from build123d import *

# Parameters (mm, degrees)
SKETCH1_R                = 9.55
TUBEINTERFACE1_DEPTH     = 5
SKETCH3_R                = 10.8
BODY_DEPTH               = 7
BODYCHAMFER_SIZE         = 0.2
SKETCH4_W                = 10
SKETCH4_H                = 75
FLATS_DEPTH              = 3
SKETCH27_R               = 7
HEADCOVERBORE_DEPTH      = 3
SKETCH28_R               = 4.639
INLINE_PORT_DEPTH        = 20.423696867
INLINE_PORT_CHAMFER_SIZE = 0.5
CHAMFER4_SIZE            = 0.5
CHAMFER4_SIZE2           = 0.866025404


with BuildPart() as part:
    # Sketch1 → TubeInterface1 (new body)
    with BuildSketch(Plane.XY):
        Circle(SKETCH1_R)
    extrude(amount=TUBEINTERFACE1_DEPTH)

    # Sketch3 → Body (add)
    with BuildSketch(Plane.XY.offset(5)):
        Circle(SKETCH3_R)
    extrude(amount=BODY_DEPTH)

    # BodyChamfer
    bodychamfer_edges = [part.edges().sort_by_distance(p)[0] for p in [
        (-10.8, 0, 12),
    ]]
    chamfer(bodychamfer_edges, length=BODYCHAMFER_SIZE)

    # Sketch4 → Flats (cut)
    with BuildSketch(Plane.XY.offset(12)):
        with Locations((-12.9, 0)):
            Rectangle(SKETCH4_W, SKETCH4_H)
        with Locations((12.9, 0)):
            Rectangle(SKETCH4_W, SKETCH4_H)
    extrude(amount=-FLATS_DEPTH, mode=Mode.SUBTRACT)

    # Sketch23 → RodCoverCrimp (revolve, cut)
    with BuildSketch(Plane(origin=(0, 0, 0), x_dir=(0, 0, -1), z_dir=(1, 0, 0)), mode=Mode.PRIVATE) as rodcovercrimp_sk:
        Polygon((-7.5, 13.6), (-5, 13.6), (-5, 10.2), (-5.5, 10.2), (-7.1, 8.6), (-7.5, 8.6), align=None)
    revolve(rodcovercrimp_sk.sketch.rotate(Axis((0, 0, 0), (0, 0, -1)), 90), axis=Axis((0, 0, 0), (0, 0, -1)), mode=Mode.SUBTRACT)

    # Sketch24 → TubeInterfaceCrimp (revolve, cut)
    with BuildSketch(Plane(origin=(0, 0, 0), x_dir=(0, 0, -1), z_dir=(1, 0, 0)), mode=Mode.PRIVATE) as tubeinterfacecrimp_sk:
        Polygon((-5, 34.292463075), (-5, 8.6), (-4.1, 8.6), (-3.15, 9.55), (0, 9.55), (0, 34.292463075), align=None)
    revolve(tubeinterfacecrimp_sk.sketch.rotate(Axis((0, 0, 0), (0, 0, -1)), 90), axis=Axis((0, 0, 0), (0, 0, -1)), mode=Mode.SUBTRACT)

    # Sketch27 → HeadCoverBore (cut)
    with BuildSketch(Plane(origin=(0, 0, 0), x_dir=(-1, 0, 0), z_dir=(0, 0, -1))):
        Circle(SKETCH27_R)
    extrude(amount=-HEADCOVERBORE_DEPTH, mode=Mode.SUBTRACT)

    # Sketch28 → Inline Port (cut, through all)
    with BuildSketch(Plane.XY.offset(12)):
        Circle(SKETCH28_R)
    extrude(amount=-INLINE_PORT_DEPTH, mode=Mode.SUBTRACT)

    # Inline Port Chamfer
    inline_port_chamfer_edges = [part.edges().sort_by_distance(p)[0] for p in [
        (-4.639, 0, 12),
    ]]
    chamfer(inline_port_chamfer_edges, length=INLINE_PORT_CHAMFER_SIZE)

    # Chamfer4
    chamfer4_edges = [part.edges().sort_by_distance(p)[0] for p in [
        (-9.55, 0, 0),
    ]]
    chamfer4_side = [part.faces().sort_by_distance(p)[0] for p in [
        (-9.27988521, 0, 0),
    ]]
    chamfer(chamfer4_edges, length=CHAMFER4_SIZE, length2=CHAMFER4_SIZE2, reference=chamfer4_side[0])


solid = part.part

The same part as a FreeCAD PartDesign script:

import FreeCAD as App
import Part
import Sketcher
Q = App.Units.Quantity


def edges_at(feature, points):
    """Names of the edges that pass closest to the given points."""
    edges = feature.Shape.Edges
    near = lambda p: min(range(len(edges)), key=lambda i: edges[i].distToShape(Part.Vertex(*p))[0])
    return sorted({f"Edge{near(p) + 1}" for p in points})

doc = App.newDocument("Part")
body = doc.addObject("PartDesign::Body", "Body")

# Sketch on XY plane
sketch1 = body.newObject("Sketcher::SketchObject", "Sketch")
sketch1.AttachmentSupport = (doc.getObject("XY_Plane"), [""])
sketch1.MapMode = "FlatFace"
sketch1.addGeometry(Part.Circle(App.Vector(0, 0, 0), App.Vector(0, 0, 1), 10), False)
sketch1.addConstraint([
    Sketcher.Constraint("Coincident", 0, 3, -1, 1),
    Sketcher.Constraint("Diameter", 0, Q("19.1 mm")),
])
pad1 = body.newObject("PartDesign::Pad", "Pad")
pad1.Profile = sketch1
pad1.Length = 5

# Sketch on XY plane
sketch2 = body.newObject("Sketcher::SketchObject", "Sketch001")
sketch2.AttachmentSupport = (doc.getObject("XY_Plane"), [""])
sketch2.MapMode = "FlatFace"
sketch2.AttachmentOffset = App.Placement(App.Vector(0, 0, 5), App.Rotation())
sketch2.addGeometry(Part.Circle(App.Vector(0, 0, 0), App.Vector(0, 0, 1), 11), False)
sketch2.addConstraint([
    Sketcher.Constraint("Coincident", 0, 3, -1, 1),
    Sketcher.Constraint("Diameter", 0, Q("21.6 mm")),
])
pad2 = body.newObject("PartDesign::Pad", "Pad001")
pad2.Profile = sketch2
pad2.Length = 7
doc.recompute()

chamfer = body.newObject("PartDesign::Chamfer", "Chamfer")
chamfer.Base = (pad2, edges_at(pad2, [(-10.8, 0, 12)]))
chamfer.Size = 0.2

# Sketch on XY plane
sketch3 = body.newObject("Sketcher::SketchObject", "Sketch002")
sketch3.AttachmentSupport = (doc.getObject("XY_Plane"), [""])
sketch3.MapMode = "FlatFace"
sketch3.AttachmentOffset = App.Placement(App.Vector(0, 0, 12), App.Rotation())
sketch3.addGeometry([
    Part.LineSegment(App.Vector(-18, 38, 0), App.Vector(-18, -38, 0)),  # 0
    Part.LineSegment(App.Vector(-18, -38, 0), App.Vector(-8, -38, 0)),  # 1
    Part.LineSegment(App.Vector(-8, -38, 0), App.Vector(-8, 38, 0)),  # 2
    Part.LineSegment(App.Vector(-8, 38, 0), App.Vector(-18, 38, 0)),  # 3
    Part.LineSegment(App.Vector(8, 38, 0), App.Vector(8, -38, 0)),  # 4
    Part.LineSegment(App.Vector(8, -38, 0), App.Vector(18, -38, 0)),  # 5
    Part.LineSegment(App.Vector(18, -38, 0), App.Vector(18, 38, 0)),  # 6
    Part.LineSegment(App.Vector(18, 38, 0), App.Vector(8, 38, 0)),  # 7
], False)
sketch3.addConstraint([
    Sketcher.Constraint("Coincident", 0, 2, 1, 1),
    Sketcher.Constraint("Coincident", 1, 2, 2, 1),
    Sketcher.Constraint("Coincident", 2, 2, 3, 1),
    Sketcher.Constraint("Coincident", 3, 2, 0, 1),
    Sketcher.Constraint("Coincident", 4, 2, 5, 1),
    Sketcher.Constraint("Coincident", 5, 2, 6, 1),
    Sketcher.Constraint("Coincident", 6, 2, 7, 1),
    Sketcher.Constraint("Coincident", 7, 2, 4, 1),
    Sketcher.Constraint("Vertical", 0),
    Sketcher.Constraint("Horizontal", 1),
    Sketcher.Constraint("Vertical", 2),
    Sketcher.Constraint("Horizontal", 3),
    Sketcher.Constraint("Vertical", 4),
    Sketcher.Constraint("Horizontal", 5),
    Sketcher.Constraint("Vertical", 6),
    Sketcher.Constraint("Horizontal", 7),
    Sketcher.Constraint("Symmetric", 2, 2, 4, 2, -1, 1),
    Sketcher.Constraint("Symmetric", 0, 2, 6, 2, -1, 1),
    Sketcher.Constraint("Horizontal", 1, 2, 4, 2),
    Sketcher.Constraint("DistanceX", 1, 1, 1, 2, Q("10 mm")),
    Sketcher.Constraint("DistanceY", 0, 2, 0, 1, Q("75 mm")),
    Sketcher.Constraint("DistanceX", 0, 2, -1, 1, Q("17.9 mm")),
])
pocket1 = body.newObject("PartDesign::Pocket", "Pocket")
pocket1.Profile = sketch3
pocket1.Length = 3

# Sketch on YZ plane
sketch4 = body.newObject("Sketcher::SketchObject", "Sketch003")
sketch4.AttachmentSupport = (doc.getObject("YZ_Plane"), [""])
sketch4.MapMode = "FlatFace"
sketch4.addGeometry([
    Part.LineSegment(App.Vector(13.6, 5, 0), App.Vector(13.6, 7.5, 0)),  # 0
    Part.LineSegment(App.Vector(13.6, 7.5, 0), App.Vector(8.6, 7.5, 0)),  # 1
    Part.LineSegment(App.Vector(8.6, 7.5, 0), App.Vector(8.6, 7.1, 0)),  # 2
    Part.LineSegment(App.Vector(8.6, 7.1, 0), App.Vector(10.2, 5.5, 0)),  # 3
    Part.LineSegment(App.Vector(10.2, 5.5, 0), App.Vector(10.2, 5, 0)),  # 4
    Part.LineSegment(App.Vector(10.2, 5, 0), App.Vector(13.6, 5, 0)),  # 5
], False)
sketch4.addConstraint([
    Sketcher.Constraint("Coincident", 0, 2, 1, 1),
    Sketcher.Constraint("Coincident", 1, 2, 2, 1),
    Sketcher.Constraint("Coincident", 2, 2, 3, 1),
    Sketcher.Constraint("Coincident", 3, 2, 4, 1),
    Sketcher.Constraint("Coincident", 4, 2, 5, 1),
    Sketcher.Constraint("Coincident", 5, 2, 0, 1),
    Sketcher.Constraint("Vertical", 0),
    Sketcher.Constraint("Horizontal", 1),
    Sketcher.Constraint("Vertical", 2),
    Sketcher.Constraint("Vertical", 4),
    Sketcher.Constraint("Horizontal", 5),
    Sketcher.Constraint("DistanceX", 1, 2, 1, 1, Q("5 mm")),
    Sketcher.Constraint("Angle", 3, Q("-45 deg")),
    Sketcher.Constraint("DistanceX", 5, 1, 5, 2, Q("3.4 mm")),
    Sketcher.Constraint("DistanceY", 0, 1, 0, 2, Q("2.5 mm")),
    Sketcher.Constraint("DistanceY", 2, 2, 2, 1, Q("0.4 mm")),
    Sketcher.Constraint("DistanceY", -1, 1, 4, 2, Q("5 mm")),
    Sketcher.Constraint("DistanceX", -1, 1, 0, 2, Q("13.6 mm")),
])
groove = body.newObject("PartDesign::Groove", "Groove")
groove.Profile = sketch4
groove.ReferenceAxis = (sketch4, ["V_Axis"])
groove.Angle = 360

# Sketch on YZ plane
sketch5 = body.newObject("Sketcher::SketchObject", "Sketch004")
sketch5.AttachmentSupport = (doc.getObject("YZ_Plane"), [""])
sketch5.MapMode = "FlatFace"
sketch5.addGeometry([
    Part.LineSegment(App.Vector(34.3, 5, 0), App.Vector(8.6, 5, 0)),  # 0
    Part.LineSegment(App.Vector(8.6, 5, 0), App.Vector(8.6, 4.1, 0)),  # 1
    Part.LineSegment(App.Vector(8.6, 4.1, 0), App.Vector(9.6, 3.1, 0)),  # 2
    Part.LineSegment(App.Vector(9.6, 3.1, 0), App.Vector(9.6, 0, 0)),  # 3
    Part.LineSegment(App.Vector(9.6, 0, 0), App.Vector(34.3, 0, 0)),  # 4
    Part.LineSegment(App.Vector(34.3, 0, 0), App.Vector(34.3, 5, 0)),  # 5
], False)
sketch5.addConstraint([
    Sketcher.Constraint("Coincident", 0, 2, 1, 1),
    Sketcher.Constraint("Coincident", 1, 2, 2, 1),
    Sketcher.Constraint("Coincident", 2, 2, 3, 1),
    Sketcher.Constraint("Coincident", 3, 2, 4, 1),
    Sketcher.Constraint("Coincident", 4, 2, 5, 1),
    Sketcher.Constraint("Coincident", 5, 2, 0, 1),
    Sketcher.Constraint("Horizontal", 0),
    Sketcher.Constraint("Vertical", 1),
    Sketcher.Constraint("Vertical", 3),
    Sketcher.Constraint("Horizontal", 4),
    Sketcher.Constraint("Vertical", 5),
    Sketcher.Constraint("PointOnObject", 3, 2, -1),
    Sketcher.Constraint("DistanceY", 5, 1, 5, 2, Q("5 mm")),
    Sketcher.Constraint("Angle", 2, Q("-45 deg")),
    Sketcher.Constraint("DistanceY", 1, 2, 1, 1, Q("0.9 mm")),
    Sketcher.Constraint("DistanceY", 3, 2, 3, 1, Q("3.15 mm")),
    Sketcher.Constraint("DistanceX", -1, 1, 0, 2, Q("8.6 mm")),
    Sketcher.Constraint("DistanceX", 0, 2, 0, 1, Q("25.692463 mm")),
])
groove2 = body.newObject("PartDesign::Groove", "Groove001")
groove2.Profile = sketch5
groove2.ReferenceAxis = (sketch5, ["V_Axis"])
groove2.Angle = 360

# Sketch on XY plane
sketch6 = body.newObject("Sketcher::SketchObject", "Sketch005")
sketch6.AttachmentSupport = (doc.getObject("XY_Plane"), [""])
sketch6.MapMode = "FlatFace"
sketch6.addGeometry(Part.Circle(App.Vector(0, 0, 0), App.Vector(0, 0, 1), 7), False)
sketch6.addConstraint([
    Sketcher.Constraint("Coincident", 0, 3, -1, 1),
    Sketcher.Constraint("Diameter", 0, Q("14 mm")),
])
pocket2 = body.newObject("PartDesign::Pocket", "Pocket001")
pocket2.Profile = sketch6
pocket2.Length = 3
pocket2.Reversed = True

# Sketch on XY plane
sketch7 = body.newObject("Sketcher::SketchObject", "Sketch006")
sketch7.AttachmentSupport = (doc.getObject("XY_Plane"), [""])
sketch7.MapMode = "FlatFace"
sketch7.AttachmentOffset = App.Placement(App.Vector(0, 0, 12), App.Rotation())
sketch7.addGeometry(Part.Circle(App.Vector(0, 0, 0), App.Vector(0, 0, 1), 4.6), False)
sketch7.addConstraint([
    Sketcher.Constraint("Coincident", 0, 3, -1, 1),
    Sketcher.Constraint("Diameter", 0, Q("9.278 mm")),
])
pocket3 = body.newObject("PartDesign::Pocket", "Pocket002")
pocket3.Profile = sketch7
pocket3.Type = "ThroughAll"
doc.recompute()

chamfer2 = body.newObject("PartDesign::Chamfer", "Chamfer001")
chamfer2.Base = (pocket3, edges_at(pocket3, [(-4.639, 0, 12)]))
chamfer2.Size = 0.5
doc.recompute()

chamfer3 = body.newObject("PartDesign::Chamfer", "Chamfer002")
chamfer3.Base = (chamfer2, edges_at(chamfer2, [(-9.55, 0, 0)]))
chamfer3.ChamferType = "Two distances"
chamfer3.Size = 0.5
chamfer3.Size2 = 0.866025

doc.recompute()
